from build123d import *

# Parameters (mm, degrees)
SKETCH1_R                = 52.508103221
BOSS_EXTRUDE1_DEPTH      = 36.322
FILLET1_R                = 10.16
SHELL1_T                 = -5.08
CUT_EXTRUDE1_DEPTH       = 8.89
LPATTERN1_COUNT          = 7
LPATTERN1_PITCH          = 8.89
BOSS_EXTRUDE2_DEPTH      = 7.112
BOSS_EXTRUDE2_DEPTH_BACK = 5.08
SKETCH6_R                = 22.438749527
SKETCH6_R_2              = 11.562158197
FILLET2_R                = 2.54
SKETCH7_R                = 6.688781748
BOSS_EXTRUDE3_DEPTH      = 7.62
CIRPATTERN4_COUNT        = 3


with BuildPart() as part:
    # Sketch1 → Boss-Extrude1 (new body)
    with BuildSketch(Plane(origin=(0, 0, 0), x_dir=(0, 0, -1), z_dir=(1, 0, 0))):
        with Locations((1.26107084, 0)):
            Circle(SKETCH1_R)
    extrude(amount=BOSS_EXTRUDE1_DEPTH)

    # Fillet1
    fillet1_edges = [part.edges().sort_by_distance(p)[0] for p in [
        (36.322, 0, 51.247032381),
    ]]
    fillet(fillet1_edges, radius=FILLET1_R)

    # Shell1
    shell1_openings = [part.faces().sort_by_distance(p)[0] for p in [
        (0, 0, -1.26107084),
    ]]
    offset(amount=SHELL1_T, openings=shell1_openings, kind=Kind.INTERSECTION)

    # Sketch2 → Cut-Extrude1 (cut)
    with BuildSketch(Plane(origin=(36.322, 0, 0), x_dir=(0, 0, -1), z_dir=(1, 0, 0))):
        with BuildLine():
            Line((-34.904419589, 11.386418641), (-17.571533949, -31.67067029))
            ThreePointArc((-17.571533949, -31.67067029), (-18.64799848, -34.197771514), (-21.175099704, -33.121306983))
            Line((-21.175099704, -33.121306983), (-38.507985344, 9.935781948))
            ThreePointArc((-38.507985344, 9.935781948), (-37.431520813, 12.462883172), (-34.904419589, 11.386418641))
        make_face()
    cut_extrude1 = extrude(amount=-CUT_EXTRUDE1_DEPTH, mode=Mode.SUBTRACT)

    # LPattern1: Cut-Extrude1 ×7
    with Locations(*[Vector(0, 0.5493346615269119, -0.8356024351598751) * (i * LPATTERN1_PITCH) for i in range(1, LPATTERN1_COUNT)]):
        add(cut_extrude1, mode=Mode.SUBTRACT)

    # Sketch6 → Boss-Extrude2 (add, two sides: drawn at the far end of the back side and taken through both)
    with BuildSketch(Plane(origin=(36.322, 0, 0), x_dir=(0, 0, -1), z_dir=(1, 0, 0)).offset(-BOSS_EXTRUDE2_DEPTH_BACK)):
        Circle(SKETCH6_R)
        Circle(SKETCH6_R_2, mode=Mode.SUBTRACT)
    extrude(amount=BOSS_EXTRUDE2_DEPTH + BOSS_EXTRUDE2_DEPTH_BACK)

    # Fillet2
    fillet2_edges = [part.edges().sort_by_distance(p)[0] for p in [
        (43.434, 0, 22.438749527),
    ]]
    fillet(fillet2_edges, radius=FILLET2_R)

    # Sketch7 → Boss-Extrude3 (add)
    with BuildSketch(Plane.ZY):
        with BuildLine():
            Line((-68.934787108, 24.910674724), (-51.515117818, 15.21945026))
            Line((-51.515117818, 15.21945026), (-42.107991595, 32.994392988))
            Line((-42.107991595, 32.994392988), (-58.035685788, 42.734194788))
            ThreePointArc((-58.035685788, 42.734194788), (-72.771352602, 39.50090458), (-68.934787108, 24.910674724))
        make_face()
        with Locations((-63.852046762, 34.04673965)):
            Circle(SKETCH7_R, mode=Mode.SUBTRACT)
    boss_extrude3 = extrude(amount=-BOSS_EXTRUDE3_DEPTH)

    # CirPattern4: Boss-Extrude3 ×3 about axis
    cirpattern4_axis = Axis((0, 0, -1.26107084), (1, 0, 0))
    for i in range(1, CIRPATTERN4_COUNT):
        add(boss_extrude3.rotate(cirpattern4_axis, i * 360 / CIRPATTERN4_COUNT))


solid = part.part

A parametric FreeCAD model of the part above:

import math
import FreeCAD as App
import Part
import Sketcher
from FreeCAD import Vector
Q = App.Units.Quantity


def edges_at(feature, points):
    """Names of the edges that pass closest to the given points."""
    edges = feature.Shape.Edges
    near = lambda p: min(range(len(edges)), key=lambda i: edges[i].distToShape(Part.Vertex(*p))[0])
    return sorted({f"Edge{near(p) + 1}" for p in points})


def faces_at(feature, points):
    """Names of the faces that lie closest to the given points."""
    faces = feature.Shape.Faces
    near = lambda p: min(range(len(faces)), key=lambda i: faces[i].distToShape(Part.Vertex(*p))[0])
    return sorted({f"Face{near(p) + 1}" for p in points})

doc = App.newDocument("Part")
body = doc.addObject("PartDesign::Body", "Body")

# Sketch on YZ plane
sketch1 = body.newObject("Sketcher::SketchObject", "Sketch")
sketch1.AttachmentSupport = (doc.getObject("YZ_Plane"), [""])
sketch1.MapMode = "FlatFace"
sketch1.addGeometry(Part.Circle(Vector(0, -1, 0), Vector(0, 0, 1), 53), False)
sketch1.addConstraint(Sketcher.Constraint("PointOnObject", 0, 3, -2))
sketch1.addConstraint(Sketcher.Constraint("Diameter", 0, 105.016206))
sketch1.addConstraint(Sketcher.Constraint("DistanceY", 0, 3, -1, 1, 1.261071))
pad1 = body.newObject("PartDesign::Pad", "Pad")
pad1.Profile = sketch1
pad1.Length = Q("1.43 in")
doc.recompute()

fillet = body.newObject("PartDesign::Fillet", "Fillet")
fillet.Base = (pad1, edges_at(pad1, [(36.322, 0, 51.247)]))
fillet.Radius = Q("0.4 in")
doc.recompute()

thickness = body.newObject("PartDesign::Thickness", "Thickness")
thickness.Base = (fillet, faces_at(fillet, [(0, 0, -1.261)]))
thickness.Value = Q("0.2 in")
thickness.Reversed = True
thickness.Join = "Intersection"

# Sketch on YZ plane
sketch2 = body.newObject("Sketcher::SketchObject", "Sketch001")
sketch2.AttachmentSupport = (doc.getObject("YZ_Plane"), [""])
sketch2.MapMode = "FlatFace"
sketch2.AttachmentOffset = App.Placement(Vector(0, 0, 1.43 * 25.4), App.Rotation())
sketch2.addGeometry(Part.LineSegment(Vector(-31.7, 17.6, 0), Vector(11.4, 34.9, 0)), False)
sketch2.addGeometry(Part.ArcOfCircle(Part.Circle(Vector(10.7, 36.7, 0), Vector(0, 0, 1), 1.9), math.radians(-68), math.radians(112)), False)
sketch2.addGeometry(Part.LineSegment(Vector(9.9, 38.5, 0), Vector(-33.1, 21.2, 0)), False)
sketch2.addGeometry(Part.ArcOfCircle(Part.Circle(Vector(-32.4, 19.4, 0), Vector(0, 0, 1), 1.9), math.radians(112), math.radians(292)), False)
sketch2.addConstraint(Sketcher.Constraint("Tangent", 0, 2, 1, 1))
sketch2.addConstraint(Sketcher.Constraint("Tangent", 1, 2, 2, 1))
sketch2.addConstraint(Sketcher.Constraint("Tangent", 2, 2, 3, 1))
sketch2.addConstraint(Sketcher.Constraint("Tangent", 3, 2, 0, 1))
sketch2.addConstraint(Sketcher.Constraint("Equal", 1, 3))
sketch2.addConstraint(Sketcher.Constraint("Radius", 1, 1.942295))
sketch2.addConstraint(Sketcher.Constraint("DistanceX", -1, 1, 1, 3, 10.6611))
sketch2.addConstraint(Sketcher.Constraint("DistanceY", -1, 1, 2, 2, 21.1751))
sketch2.addConstraint(Sketcher.Constraint("Distance", 0, 46.414888))
sketch2.addConstraint(Sketcher.Constraint("DistanceX", 3, 3, -1, 1, 32.395989))
pocket1 = body.newObject("PartDesign::Pocket", "Pocket")
pocket1.Profile = sketch2
pocket1.Length = Q("0.35 in")
doc.recompute()

datumline = body.newObject("PartDesign::Line", "DatumLine")
datumline.Placement = App.Placement(Vector(0, 0, 0), App.Rotation(Vector(0, 0, 1), Vector(0, 0.549334662, -0.835602435)))
linearpattern = body.newObject("PartDesign::LinearPattern", "LinearPattern")
linearpattern.Originals = [pocket1]
linearpattern.Direction = (datumline, [""])
linearpattern.Mode = "offset"
linearpattern.Offset = Q("0.35 in")
linearpattern.Occurrences = 7
body.Tip = linearpattern

# Sketch on YZ plane
sketch3 = body.newObject("Sketcher::SketchObject", "Sketch002")
sketch3.AttachmentSupport = (doc.getObject("YZ_Plane"), [""])
sketch3.MapMode = "FlatFace"
sketch3.AttachmentOffset = App.Placement(Vector(0, 0, 1.43 * 25.4), App.Rotation())
sketch3.addGeometry(Part.Circle(Vector(0, 0, 0), Vector(0, 0, 1), 22), False)
sketch3.addGeometry(Part.Circle(Vector(0, 0, 0), Vector(0, 0, 1), 12), False)
sketch3.addConstraint(Sketcher.Constraint("Coincident", 0, 3, -1, 1))
sketch3.addConstraint(Sketcher.Constraint("Coincident", 1, 3, -1, 1))
sketch3.addConstraint(Sketcher.Constraint("Diameter", 0, 44.877499))
sketch3.addConstraint(Sketcher.Constraint("Diameter", 1, 23.124316))
pad2 = body.newObject("PartDesign::Pad", "Pad001")
pad2.Profile = sketch3
pad2.Type = "TwoLengths"
pad2.Length = Q("0.28 in")
pad2.Length2 = Q("0.2 in")
doc.recompute()

fillet2 = body.newObject("PartDesign::Fillet", "Fillet001")
fillet2.Base = (pad2, edges_at(pad2, [(43.434, 0, 22.439)]))
fillet2.Radius = Q("0.1 in")

# Sketch on YZ plane
sketch4 = body.newObject("Sketcher::SketchObject", "Sketch003")
sketch4.AttachmentSupport = (doc.getObject("YZ_Plane"), [""])
sketch4.MapMode = "FlatFace"
sketch4.addGeometry(Part.LineSegment(Vector(25, -69, 0), Vector(15, -52, 0)), False)
sketch4.addGeometry(Part.LineSegment(Vector(15, -52, 0), Vector(33, -42, 0)), False)
sketch4.addGeometry(Part.LineSegment(Vector(33, -42, 0), Vector(43, -58, 0)), False)
sketch4.addGeometry(Part.ArcOfCircle(Part.Circle(Vector(34, -64, 0), Vector(0, 0, 1), 10), math.radians(-151), math.radians(34)), False)
sketch4.addGeometry(Part.Circle(Vector(34, -64, 0), Vector(0, 0, 1), 7), False)
sketch4.addConstraint(Sketcher.Constraint("Coincident", 0, 2, 1, 1))
sketch4.addConstraint(Sketcher.Constraint("Coincident", 1, 2, 2, 1))
sketch4.addConstraint(Sketcher.Constraint("Coincident", 2, 2, 3, 2))
sketch4.addConstraint(Sketcher.Constraint("Tangent", 3, 1, 0, 1))
sketch4.addConstraint(Sketcher.Constraint("Coincident", 4, 3, 3, 3))
sketch4.addConstraint(Sketcher.Constraint("Diameter", 4, 13.377563))
sketch4.addConstraint(Sketcher.Constraint("Radius", 3, 10.454756))
sketch4.addConstraint(Sketcher.Constraint("DistanceX", 1, 2, 2, 2, 9.739802))
sketch4.addConstraint(Sketcher.Constraint("DistanceY", 3, 1, 2, 2, 10.899101))
sketch4.addConstraint(Sketcher.Constraint("Distance", 0, 19.934009))
sketch4.addConstraint(Sketcher.Constraint("Distance", 1, 20.110759))
sketch4.addConstraint(Sketcher.Constraint("DistanceX", -1, 1, 3, 3, 34.04674))
sketch4.addConstraint(Sketcher.Constraint("DistanceX", -1, 1, 0, 2, 15.21945))
sketch4.addConstraint(Sketcher.Constraint("DistanceY", 1, 2, -1, 1, 42.107992))
pad3 = body.newObject("PartDesign::Pad", "Pad002")
pad3.Profile = sketch4
pad3.Length = Q("0.3 in")
doc.recompute()

datumline2 = body.newObject("PartDesign::Line", "DatumLine001")
datumline2.Placement = App.Placement(Vector(0, 0, -1.261071), App.Rotation(Vector(0, 0, 1), Vector(1, 0, 0)))
polarpattern = body.newObject("PartDesign::PolarPattern", "PolarPattern")
polarpattern.Originals = [pad3]
polarpattern.Axis = (datumline2, [""])
polarpattern.Angle = 360
polarpattern.Occurrences = 3
body.Tip = polarpattern

doc.recompute()
